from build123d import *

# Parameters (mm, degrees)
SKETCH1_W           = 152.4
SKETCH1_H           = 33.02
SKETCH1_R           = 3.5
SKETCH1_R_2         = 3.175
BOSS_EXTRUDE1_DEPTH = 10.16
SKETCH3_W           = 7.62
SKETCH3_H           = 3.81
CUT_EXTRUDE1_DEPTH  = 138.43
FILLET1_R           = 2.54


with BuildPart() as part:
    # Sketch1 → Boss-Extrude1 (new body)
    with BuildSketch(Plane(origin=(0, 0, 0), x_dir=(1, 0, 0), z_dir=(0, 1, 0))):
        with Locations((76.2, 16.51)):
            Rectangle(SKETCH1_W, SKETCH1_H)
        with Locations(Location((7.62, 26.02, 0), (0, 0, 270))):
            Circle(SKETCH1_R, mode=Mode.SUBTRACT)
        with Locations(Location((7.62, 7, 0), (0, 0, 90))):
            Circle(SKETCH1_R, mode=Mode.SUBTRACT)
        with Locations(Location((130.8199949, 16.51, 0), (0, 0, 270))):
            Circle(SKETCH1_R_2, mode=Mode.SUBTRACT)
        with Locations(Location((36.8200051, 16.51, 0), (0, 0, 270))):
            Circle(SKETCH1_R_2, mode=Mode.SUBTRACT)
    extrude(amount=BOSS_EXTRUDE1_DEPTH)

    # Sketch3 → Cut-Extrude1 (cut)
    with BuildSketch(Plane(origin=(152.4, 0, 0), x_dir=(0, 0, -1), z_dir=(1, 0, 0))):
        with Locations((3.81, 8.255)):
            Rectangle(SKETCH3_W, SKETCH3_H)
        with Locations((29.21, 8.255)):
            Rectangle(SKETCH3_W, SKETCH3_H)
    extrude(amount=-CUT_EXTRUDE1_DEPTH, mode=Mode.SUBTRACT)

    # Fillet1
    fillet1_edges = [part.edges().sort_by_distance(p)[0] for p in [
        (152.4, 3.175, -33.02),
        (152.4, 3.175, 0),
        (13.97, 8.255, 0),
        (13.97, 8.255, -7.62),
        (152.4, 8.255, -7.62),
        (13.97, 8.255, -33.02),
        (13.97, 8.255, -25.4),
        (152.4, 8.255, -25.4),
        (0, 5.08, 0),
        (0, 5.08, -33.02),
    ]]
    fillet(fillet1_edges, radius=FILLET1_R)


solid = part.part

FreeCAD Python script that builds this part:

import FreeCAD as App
import Part
import Sketcher

V = App.Vector
Q = App.Units.Quantity


def edges_at(feature, points):
    """Names of the edges that pass closest to the given points."""
    edges = feature.Shape.Edges
    near = lambda p: min(range(len(edges)), key=lambda i: edges[i].distToShape(Part.Vertex(*p))[0])
    return sorted({f"Edge{near(p) + 1}" for p in points})


def add_polygon(sketch, points):
    """Adds a closed chain of lines whose ends are joined by coincident constraints."""
    first, n = sketch.GeometryCount, len(points)
    for a, b in zip(points, points[1:] + points[:1]):
        sketch.addGeometry(Part.LineSegment(App.Vector(*a, 0), App.Vector(*b, 0)), False)
    for i in range(n):
        sketch.addConstraint(Sketcher.Constraint("Coincident", first + i, 2, first + (i + 1) % n, 1))

doc = App.newDocument("Part")
body = doc.addObject("PartDesign::Body", "Body")

sketch1 = body.newObject("Sketcher::SketchObject", "Sketch")
sketch1.AttachmentSupport = (doc.getObject("XZ_Plane"), [""])
sketch1.MapMode = "FlatFace"
add_polygon(sketch1, [(0, -33), (0, 0), (152.4, 0), (152.4, -33)])
sketch1.addGeometry(Part.Circle(V(7.6, -7, 0), V(0, 0, 1), 3.5), False)
sketch1.addGeometry(Part.Circle(V(36.8, -16.5, 0), V(0, 0, 1), 3.2), False)
sketch1.addGeometry(Part.Circle(V(7.6, -26, 0), V(0, 0, 1), 3.5), False)
sketch1.addGeometry(Part.Circle(V(130.8, -16.5, 0), V(0, 0, 1), 3.2), False)
sketch1.addConstraint(Sketcher.Constraint("Vertical", 0))
sketch1.addConstraint(Sketcher.Constraint("Horizontal", 1))
sketch1.addConstraint(Sketcher.Constraint("Vertical", 2))
sketch1.addConstraint(Sketcher.Constraint("Horizontal", 3))
sketch1.addConstraint(Sketcher.Constraint("Coincident", 0, 2, -1, 1))
sketch1.addConstraint(Sketcher.Constraint("Equal", 4, 6))
sketch1.addConstraint(Sketcher.Constraint("Equal", 5, 7))
sketch1.addConstraint(Sketcher.Constraint("Horizontal", 5, 3, 7, 3))
sketch1.addConstraint(Sketcher.Constraint("Vertical", 4, 3, 6, 3))
sketch1.addConstraint(Sketcher.Constraint("Diameter", 5, Q("0.25 in")))
sketch1.addConstraint(Sketcher.Constraint("DistanceX", 1, 1, 1, 2, Q("6 in")))
sketch1.addConstraint(Sketcher.Constraint("DistanceY", 0, 1, 0, 2, Q("1.3 in")))
sketch1.addConstraint(Sketcher.Constraint("DistanceX", -1, 1, 4, 3, Q("0.3 in")))
sketch1.addConstraint(Sketcher.Constraint("Diameter", 4, 7.0))
sketch1.addConstraint(Sketcher.Constraint("DistanceY", 5, 3, -1, 1, Q("0.65 in")))
sketch1.addConstraint(Sketcher.Constraint("DistanceY", 4, 3, -1, 1, 7.0))
sketch1.addConstraint(Sketcher.Constraint("DistanceY", 6, 3, -1, 1, 26.02))
sketch1.addConstraint(Sketcher.Constraint("DistanceX", 5, 3, 7, 3, 93.99999))
sketch1.addConstraint(Sketcher.Constraint("DistanceX", -1, 1, 5, 3, 36.820005))
pad1 = body.newObject("PartDesign::Pad", "Pad")
pad1.Profile = sketch1
pad1.Length = Q("0.4 in")
pad1.Reversed = True

sketch2 = body.newObject("Sketcher::SketchObject", "Sketch001")
sketch2.AttachmentSupport = (doc.getObject("YZ_Plane"), [""])
sketch2.MapMode = "FlatFace"
sketch2.AttachmentOffset = App.Placement(V(0, 0, 6 * 25.4), App.Rotation())
add_polygon(sketch2, [(10.2, 0), (6.3, 0), (6.3, -7.6), (10.2, -7.6)])
add_polygon(sketch2, [(10.2, -25.4), (6.3, -25.4), (6.3, -33), (10.2, -33)])
sketch2.addConstraint(Sketcher.Constraint("Horizontal", 0))
sketch2.addConstraint(Sketcher.Constraint("Vertical", 1))
sketch2.addConstraint(Sketcher.Constraint("Horizontal", 2))
sketch2.addConstraint(Sketcher.Constraint("Vertical", 3))
sketch2.addConstraint(Sketcher.Constraint("Horizontal", 4))
sketch2.addConstraint(Sketcher.Constraint("Vertical", 5))
sketch2.addConstraint(Sketcher.Constraint("Horizontal", 6))
sketch2.addConstraint(Sketcher.Constraint("Vertical", 7))
sketch2.addConstraint(Sketcher.Constraint("PointOnObject", 0, 2, -1))
sketch2.addConstraint(Sketcher.Constraint("Vertical", 1, 2, 4, 2))
sketch2.addConstraint(Sketcher.Constraint("Vertical", 3, 2, 6, 2))
sketch2.addConstraint(Sketcher.Constraint("Equal", 3, 5))
sketch2.addConstraint(Sketcher.Constraint("DistanceY", 1, 2, 1, 1, Q("0.3 in")))
sketch2.addConstraint(Sketcher.Constraint("DistanceY", 4, 2, -1, 1, Q("1 in")))
sketch2.addConstraint(Sketcher.Constraint("DistanceX", 0, 2, 0, 1, Q("0.15 in")))
sketch2.addConstraint(Sketcher.Constraint("DistanceX", -1, 1, 2, 2, Q("0.4 in")))
pocket1 = body.newObject("PartDesign::Pocket", "Pocket")
pocket1.Profile = sketch2
pocket1.Length = Q("5.45 in")
doc.recompute()

fillet = body.newObject("PartDesign::Fillet", "Fillet")
fillet.Base = (pocket1, edges_at(pocket1, [
    (152.4, 3.175, -33.02),
    (152.4, 3.175, 0),
    (13.97, 8.255, 0),
    (13.97, 8.255, -7.62),
    (152.4, 8.255, -7.62),
    (13.97, 8.255, -33.02),
    (13.97, 8.255, -25.4),
    (152.4, 8.255, -25.4),
    (0, 5.08, 0),
    (0, 5.08, -33.02),
]))
fillet.Radius = Q("0.1 in")

doc.recompute()
